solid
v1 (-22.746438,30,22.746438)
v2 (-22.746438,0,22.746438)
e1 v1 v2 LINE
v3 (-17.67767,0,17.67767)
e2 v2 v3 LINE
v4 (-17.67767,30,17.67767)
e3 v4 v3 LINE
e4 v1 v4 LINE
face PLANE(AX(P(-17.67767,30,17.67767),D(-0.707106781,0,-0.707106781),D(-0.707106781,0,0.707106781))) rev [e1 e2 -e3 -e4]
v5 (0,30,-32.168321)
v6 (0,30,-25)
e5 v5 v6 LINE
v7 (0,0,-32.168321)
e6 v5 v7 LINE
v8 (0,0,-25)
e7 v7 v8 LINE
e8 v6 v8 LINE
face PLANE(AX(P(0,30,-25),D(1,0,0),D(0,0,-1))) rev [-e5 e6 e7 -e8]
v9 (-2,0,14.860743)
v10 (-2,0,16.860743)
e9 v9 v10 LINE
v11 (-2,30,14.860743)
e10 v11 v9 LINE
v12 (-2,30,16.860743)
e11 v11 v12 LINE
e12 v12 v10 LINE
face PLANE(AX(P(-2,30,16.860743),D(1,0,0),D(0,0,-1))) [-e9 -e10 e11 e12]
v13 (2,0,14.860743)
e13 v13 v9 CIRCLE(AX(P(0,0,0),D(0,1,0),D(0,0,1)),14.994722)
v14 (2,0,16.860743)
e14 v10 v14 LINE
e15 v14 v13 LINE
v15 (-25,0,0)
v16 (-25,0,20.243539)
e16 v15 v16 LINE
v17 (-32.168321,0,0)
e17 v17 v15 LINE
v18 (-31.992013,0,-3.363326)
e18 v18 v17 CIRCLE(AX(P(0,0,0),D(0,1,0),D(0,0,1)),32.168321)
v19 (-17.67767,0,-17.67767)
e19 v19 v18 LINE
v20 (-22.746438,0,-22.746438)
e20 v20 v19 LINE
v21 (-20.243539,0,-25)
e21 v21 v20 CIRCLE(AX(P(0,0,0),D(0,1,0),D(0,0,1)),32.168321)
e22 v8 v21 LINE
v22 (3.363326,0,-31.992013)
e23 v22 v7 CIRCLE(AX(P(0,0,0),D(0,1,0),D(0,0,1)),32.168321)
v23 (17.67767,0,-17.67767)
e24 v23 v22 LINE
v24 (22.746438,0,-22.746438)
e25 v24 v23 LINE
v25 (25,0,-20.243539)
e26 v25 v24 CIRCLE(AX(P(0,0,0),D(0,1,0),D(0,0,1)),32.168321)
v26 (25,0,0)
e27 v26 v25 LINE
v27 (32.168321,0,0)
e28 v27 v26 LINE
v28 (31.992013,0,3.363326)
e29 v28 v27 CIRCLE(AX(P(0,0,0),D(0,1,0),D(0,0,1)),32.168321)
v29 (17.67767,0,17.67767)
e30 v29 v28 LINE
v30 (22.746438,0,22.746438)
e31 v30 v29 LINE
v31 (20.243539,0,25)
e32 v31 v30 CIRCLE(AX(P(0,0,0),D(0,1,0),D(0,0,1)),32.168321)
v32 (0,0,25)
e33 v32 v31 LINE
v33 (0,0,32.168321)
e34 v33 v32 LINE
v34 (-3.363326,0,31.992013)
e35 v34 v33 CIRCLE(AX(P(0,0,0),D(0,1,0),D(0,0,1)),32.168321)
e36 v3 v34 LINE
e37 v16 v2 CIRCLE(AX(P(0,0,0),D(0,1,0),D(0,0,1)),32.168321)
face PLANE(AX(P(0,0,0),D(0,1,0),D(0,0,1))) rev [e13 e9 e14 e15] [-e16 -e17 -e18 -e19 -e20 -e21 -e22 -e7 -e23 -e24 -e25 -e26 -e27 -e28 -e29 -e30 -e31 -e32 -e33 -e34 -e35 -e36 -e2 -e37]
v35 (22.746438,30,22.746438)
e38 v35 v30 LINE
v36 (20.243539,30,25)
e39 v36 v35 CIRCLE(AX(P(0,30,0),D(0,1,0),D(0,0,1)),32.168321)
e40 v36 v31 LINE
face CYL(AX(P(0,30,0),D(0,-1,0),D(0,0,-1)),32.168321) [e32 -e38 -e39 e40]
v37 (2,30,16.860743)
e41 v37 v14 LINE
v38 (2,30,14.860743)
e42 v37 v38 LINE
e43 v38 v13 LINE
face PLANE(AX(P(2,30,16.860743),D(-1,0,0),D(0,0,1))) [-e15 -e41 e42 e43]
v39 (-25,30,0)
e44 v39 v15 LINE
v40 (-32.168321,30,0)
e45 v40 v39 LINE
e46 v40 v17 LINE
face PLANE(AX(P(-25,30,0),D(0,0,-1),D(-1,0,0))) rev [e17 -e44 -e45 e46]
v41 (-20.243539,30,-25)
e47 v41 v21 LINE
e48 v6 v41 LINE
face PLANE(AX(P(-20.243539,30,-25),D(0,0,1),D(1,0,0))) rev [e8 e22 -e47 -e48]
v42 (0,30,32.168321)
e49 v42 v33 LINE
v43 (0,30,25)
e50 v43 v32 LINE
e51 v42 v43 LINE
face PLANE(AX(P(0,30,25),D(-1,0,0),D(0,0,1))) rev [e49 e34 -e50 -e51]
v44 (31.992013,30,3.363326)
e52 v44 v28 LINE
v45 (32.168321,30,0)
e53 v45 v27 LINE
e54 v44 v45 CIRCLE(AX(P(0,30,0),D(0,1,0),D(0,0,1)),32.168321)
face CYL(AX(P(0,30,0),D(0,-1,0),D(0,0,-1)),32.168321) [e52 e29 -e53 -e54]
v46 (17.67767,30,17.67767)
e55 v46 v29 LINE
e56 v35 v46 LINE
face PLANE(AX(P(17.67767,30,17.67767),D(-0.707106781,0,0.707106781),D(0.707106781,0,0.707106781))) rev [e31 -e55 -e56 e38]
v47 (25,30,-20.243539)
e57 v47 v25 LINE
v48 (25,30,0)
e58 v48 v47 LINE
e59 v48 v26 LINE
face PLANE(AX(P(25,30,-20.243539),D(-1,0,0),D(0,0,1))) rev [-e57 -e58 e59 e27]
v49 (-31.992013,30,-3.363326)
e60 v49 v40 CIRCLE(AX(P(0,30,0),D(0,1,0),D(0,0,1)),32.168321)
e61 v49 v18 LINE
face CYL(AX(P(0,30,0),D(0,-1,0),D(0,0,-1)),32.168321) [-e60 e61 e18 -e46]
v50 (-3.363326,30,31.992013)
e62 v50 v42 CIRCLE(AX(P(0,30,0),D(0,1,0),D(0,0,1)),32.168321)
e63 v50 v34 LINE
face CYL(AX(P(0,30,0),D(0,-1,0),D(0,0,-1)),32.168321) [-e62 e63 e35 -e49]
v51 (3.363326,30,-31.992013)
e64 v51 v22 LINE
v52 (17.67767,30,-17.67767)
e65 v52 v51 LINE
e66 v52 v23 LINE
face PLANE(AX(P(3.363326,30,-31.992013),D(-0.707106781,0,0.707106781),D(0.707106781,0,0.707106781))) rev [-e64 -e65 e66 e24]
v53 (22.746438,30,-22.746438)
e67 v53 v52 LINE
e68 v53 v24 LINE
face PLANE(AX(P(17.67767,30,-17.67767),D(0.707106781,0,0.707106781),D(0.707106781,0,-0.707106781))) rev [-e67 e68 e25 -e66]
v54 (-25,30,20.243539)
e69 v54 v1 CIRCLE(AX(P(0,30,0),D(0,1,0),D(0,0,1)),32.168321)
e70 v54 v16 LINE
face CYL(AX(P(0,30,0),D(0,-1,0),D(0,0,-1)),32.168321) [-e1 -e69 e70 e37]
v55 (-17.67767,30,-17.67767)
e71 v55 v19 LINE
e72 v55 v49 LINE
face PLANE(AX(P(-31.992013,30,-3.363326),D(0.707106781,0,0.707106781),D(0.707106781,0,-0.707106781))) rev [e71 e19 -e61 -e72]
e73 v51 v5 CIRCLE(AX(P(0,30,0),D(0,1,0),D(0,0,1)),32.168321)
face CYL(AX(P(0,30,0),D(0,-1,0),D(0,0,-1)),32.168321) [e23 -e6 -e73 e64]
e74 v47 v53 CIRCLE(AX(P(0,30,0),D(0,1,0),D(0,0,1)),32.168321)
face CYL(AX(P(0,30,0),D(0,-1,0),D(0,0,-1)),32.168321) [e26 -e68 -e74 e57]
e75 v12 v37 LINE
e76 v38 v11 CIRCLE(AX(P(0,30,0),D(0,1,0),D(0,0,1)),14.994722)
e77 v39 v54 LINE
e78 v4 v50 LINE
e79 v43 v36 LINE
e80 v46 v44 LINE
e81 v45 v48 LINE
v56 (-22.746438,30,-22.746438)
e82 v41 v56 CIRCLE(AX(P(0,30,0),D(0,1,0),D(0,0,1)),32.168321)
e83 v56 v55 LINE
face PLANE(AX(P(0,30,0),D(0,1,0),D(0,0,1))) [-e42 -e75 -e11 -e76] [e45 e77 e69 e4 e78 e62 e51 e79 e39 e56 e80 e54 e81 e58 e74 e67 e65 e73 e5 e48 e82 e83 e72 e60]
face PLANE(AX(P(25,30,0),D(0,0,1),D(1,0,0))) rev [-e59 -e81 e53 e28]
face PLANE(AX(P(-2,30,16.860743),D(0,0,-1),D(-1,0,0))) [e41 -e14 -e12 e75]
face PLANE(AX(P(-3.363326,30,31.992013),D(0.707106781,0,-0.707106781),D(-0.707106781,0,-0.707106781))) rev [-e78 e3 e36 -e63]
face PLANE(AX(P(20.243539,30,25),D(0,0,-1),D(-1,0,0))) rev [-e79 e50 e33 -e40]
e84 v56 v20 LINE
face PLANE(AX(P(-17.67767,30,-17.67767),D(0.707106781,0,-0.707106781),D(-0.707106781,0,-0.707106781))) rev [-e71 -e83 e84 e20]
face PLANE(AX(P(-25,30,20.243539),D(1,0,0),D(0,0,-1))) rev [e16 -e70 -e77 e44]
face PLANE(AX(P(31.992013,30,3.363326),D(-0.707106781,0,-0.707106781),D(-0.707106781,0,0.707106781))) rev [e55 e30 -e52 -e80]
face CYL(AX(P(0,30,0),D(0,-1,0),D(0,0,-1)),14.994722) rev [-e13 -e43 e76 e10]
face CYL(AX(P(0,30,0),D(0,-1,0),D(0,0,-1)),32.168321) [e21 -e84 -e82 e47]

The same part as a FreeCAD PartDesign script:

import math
import FreeCAD as App
import Part
import Sketcher
Q = App.Units.Quantity

doc = App.newDocument("Part")
body = doc.addObject("PartDesign::Body", "Body")

sketch1 = body.newObject("Sketcher::SketchObject", "Sketch")
sketch1.AttachmentSupport = (doc.getObject("XZ_Plane"), [""])
sketch1.MapMode = "FlatFace"
sketch1.addGeometry([
    Part.LineSegment(App.Vector(0, 32.168321, 0), App.Vector(0, 25, 0)),
    Part.LineSegment(App.Vector(0, 25, 0), App.Vector(20.243539, 25, 0)),
    Part.ArcOfCircle(Part.Circle(App.Vector(0, 0, 0), App.Vector(0, 0, 1), 32.168321), math.radians(45), math.radians(51.00147)),
    Part.LineSegment(App.Vector(22.746438, 22.746438, 0), App.Vector(17.67767, 17.67767, 0)),
    Part.LineSegment(App.Vector(17.67767, 17.67767, 0), App.Vector(31.992013, 3.363326, 0)),
    Part.ArcOfCircle(Part.Circle(App.Vector(0, 0, 0), App.Vector(0, 0, 1), 32.16832), math.radians(0), math.radians(6.00147)),
    Part.LineSegment(App.Vector(32.168321, 0, 0), App.Vector(25, 0, 0)),
    Part.LineSegment(App.Vector(25, 0, 0), App.Vector(25, -20.243539, 0)),
    Part.ArcOfCircle(Part.Circle(App.Vector(0, 0, 0), App.Vector(0, 0, 1), 32.168321), math.radians(-45), math.radians(-38.99853)),
    Part.LineSegment(App.Vector(22.746438, -22.746438, 0), App.Vector(17.67767, -17.67767, 0)),
    Part.LineSegment(App.Vector(17.67767, -17.67767, 0), App.Vector(3.363326, -31.992013, 0)),
    Part.ArcOfCircle(Part.Circle(App.Vector(0, 0, 0), App.Vector(0, 0, 1), 32.16832), math.radians(-90), math.radians(-83.99853)),
    Part.LineSegment(App.Vector(0, -32.168321, 0), App.Vector(0, -25, 0)),
    Part.LineSegment(App.Vector(0, -25, 0), App.Vector(-20.243539, -25, 0)),
    Part.ArcOfCircle(Part.Circle(App.Vector(0, 0, 0), App.Vector(0, 0, 1), 32.168321), math.radians(-135), math.radians(-128.99853)),
    Part.LineSegment(App.Vector(-22.746438, -22.746438, 0), App.Vector(-17.67767, -17.67767, 0)),
    Part.LineSegment(App.Vector(-17.67767, -17.67767, 0), App.Vector(-31.992013, -3.363326, 0)),
    Part.ArcOfCircle(Part.Circle(App.Vector(0, 0, 0), App.Vector(0, 0, 1), 32.16832), math.radians(180), math.radians(186.00147)),
    Part.LineSegment(App.Vector(-32.168321, 0, 0), App.Vector(-25, 0, 0)),
    Part.LineSegment(App.Vector(-25, 0, 0), App.Vector(-25, 20.243539, 0)),
    Part.ArcOfCircle(Part.Circle(App.Vector(0, 0, 0), App.Vector(0, 0, 1), 32.168321), math.radians(135), math.radians(141.00147)),
    Part.LineSegment(App.Vector(-22.746438, 22.746438, 0), App.Vector(-17.67767, 17.67767, 0)),
    Part.LineSegment(App.Vector(-17.67767, 17.67767, 0), App.Vector(-3.363326, 31.992013, 0)),
    Part.ArcOfCircle(Part.Circle(App.Vector(0, 0, 0), App.Vector(0, 0, 1), 32.16832), math.radians(90), math.radians(96.00147)),
    Part.LineSegment(App.Vector(-2, 16.860743, 0), App.Vector(-2, 14.860743, 0)),
    Part.ArcOfCircle(Part.Circle(App.Vector(0, 0, 0), App.Vector(0, 0, 1), 14.994722), math.radians(97.664969), math.radians(442.335031)),
    Part.LineSegment(App.Vector(2, 14.860743, 0), App.Vector(2, 16.860743, 0)),
    Part.LineSegment(App.Vector(2, 16.860743, 0), App.Vector(-2, 16.860743, 0)),
], False)
sketch1.addConstraint([
    Sketcher.Constraint("Coincident", 0, 2, 1, 1),
    Sketcher.Constraint("Coincident", 1, 2, 2, 2),
    Sketcher.Constraint("Coincident", 2, 1, 3, 1),
    Sketcher.Constraint("Coincident", 3, 2, 4, 1),
    Sketcher.Constraint("Coincident", 4, 2, 5, 2),
    Sketcher.Constraint("Coincident", 5, 1, 6, 1),
    Sketcher.Constraint("Coincident", 6, 2, 7, 1),
    Sketcher.Constraint("Coincident", 7, 2, 8, 2),
    Sketcher.Constraint("Coincident", 8, 1, 9, 1),
    Sketcher.Constraint("Coincident", 9, 2, 10, 1),
    Sketcher.Constraint("Coincident", 10, 2, 11, 2),
    Sketcher.Constraint("Coincident", 11, 1, 12, 1),
    Sketcher.Constraint("Coincident", 12, 2, 13, 1),
    Sketcher.Constraint("Coincident", 13, 2, 14, 2),
    Sketcher.Constraint("Coincident", 14, 1, 15, 1),
    Sketcher.Constraint("Coincident", 15, 2, 16, 1),
    Sketcher.Constraint("Coincident", 16, 2, 17, 2),
    Sketcher.Constraint("Coincident", 17, 1, 18, 1),
    Sketcher.Constraint("Coincident", 18, 2, 19, 1),
    Sketcher.Constraint("Coincident", 19, 2, 20, 2),
    Sketcher.Constraint("Coincident", 20, 1, 21, 1),
    Sketcher.Constraint("Coincident", 21, 2, 22, 1),
    Sketcher.Constraint("Coincident", 22, 2, 23, 2),
    Sketcher.Constraint("Coincident", 23, 1, 0, 1),
    Sketcher.Constraint("Coincident", 24, 2, 25, 1),
    Sketcher.Constraint("Coincident", 25, 2, 26, 1),
    Sketcher.Constraint("Coincident", 26, 2, 27, 1),
    Sketcher.Constraint("Coincident", 27, 2, 24, 1),
    Sketcher.Constraint("Vertical", 0),
    Sketcher.Constraint("Horizontal", 1),
    Sketcher.Constraint("Horizontal", 6),
    Sketcher.Constraint("Vertical", 7),
    Sketcher.Constraint("Vertical", 12),
    Sketcher.Constraint("Horizontal", 13),
    Sketcher.Constraint("Horizontal", 18),
    Sketcher.Constraint("Vertical", 19),
    Sketcher.Constraint("Vertical", 24),
    Sketcher.Constraint("Vertical", 26),
    Sketcher.Constraint("Horizontal", 27),
    Sketcher.Constraint("Coincident", 2, 3, -1, 1),
    Sketcher.Constraint("Coincident", 5, 3, -1, 1),
    Sketcher.Constraint("Coincident", 8, 3, -1, 1),
    Sketcher.Constraint("Coincident", 11, 3, -1, 1),
    Sketcher.Constraint("Coincident", 14, 3, -1, 1),
    Sketcher.Constraint("Coincident", 17, 3, -1, 1),
    Sketcher.Constraint("Coincident", 20, 3, -1, 1),
    Sketcher.Constraint("Coincident", 23, 3, -1, 1),
    Sketcher.Constraint("Coincident", 25, 3, -1, 1),
    Sketcher.Constraint("Equal", 2, 5),
    Sketcher.Constraint("Equal", 5, 8),
    Sketcher.Constraint("Equal", 8, 11),
    Sketcher.Constraint("Equal", 11, 14),
    Sketcher.Constraint("Equal", 14, 17),
    Sketcher.Constraint("Equal", 17, 20),
    Sketcher.Constraint("Equal", 20, 23),
    Sketcher.Constraint("Symmetric", 0, 2, 12, 2, -1, 1),
    Sketcher.Constraint("Symmetric", 3, 2, 15, 2, -1, 1),
    Sketcher.Constraint("Symmetric", 6, 2, 18, 2, -1, 1),
    Sketcher.Constraint("Symmetric", 9, 2, 21, 2, -1, 1),
    Sketcher.Constraint("Symmetric", 9, 2, 15, 2, -2),
    Sketcher.Constraint("PointOnObject", 0, 2, -2),
    Sketcher.Constraint("PointOnObject", 5, 1, -1),
    Sketcher.Constraint("Perpendicular", 3, 4),
    Sketcher.Constraint("Parallel", 4, 9),
    Sketcher.Constraint("Perpendicular", 9, 10),
    Sketcher.Constraint("Parallel", 10, 15),
    Sketcher.Constraint("Perpendicular", 15, 16),
    Sketcher.Constraint("Parallel", 16, 21),
    Sketcher.Constraint("Perpendicular", 21, 22),
    Sketcher.Constraint("Horizontal", 8, 1, 14, 1),
    Sketcher.Constraint("Horizontal", 24, 2, 25, 2),
    Sketcher.Constraint("Equal", 18, 0),
    Sketcher.Constraint("Equal", 4, 10),
    Sketcher.Constraint("DistanceX", 27, 2, 27, 1, Q("4 mm")),
    Sketcher.Constraint("DistanceY", 24, 2, 24, 1, Q("2 mm")),
    Sketcher.Constraint("DistanceY", -1, 1, 0, 2, Q("25 mm")),
    Sketcher.Constraint("Radius", 2, Q("32.168321 mm")),
    Sketcher.Constraint("Radius", 25, Q("14.994722 mm")),
    Sketcher.Constraint("Distance", 3, Q("7.168321 mm")),
])
pad1 = body.newObject("PartDesign::Pad", "Pad")
pad1.Profile = sketch1
pad1.Length = 30
pad1.Reversed = True

doc.recompute()
